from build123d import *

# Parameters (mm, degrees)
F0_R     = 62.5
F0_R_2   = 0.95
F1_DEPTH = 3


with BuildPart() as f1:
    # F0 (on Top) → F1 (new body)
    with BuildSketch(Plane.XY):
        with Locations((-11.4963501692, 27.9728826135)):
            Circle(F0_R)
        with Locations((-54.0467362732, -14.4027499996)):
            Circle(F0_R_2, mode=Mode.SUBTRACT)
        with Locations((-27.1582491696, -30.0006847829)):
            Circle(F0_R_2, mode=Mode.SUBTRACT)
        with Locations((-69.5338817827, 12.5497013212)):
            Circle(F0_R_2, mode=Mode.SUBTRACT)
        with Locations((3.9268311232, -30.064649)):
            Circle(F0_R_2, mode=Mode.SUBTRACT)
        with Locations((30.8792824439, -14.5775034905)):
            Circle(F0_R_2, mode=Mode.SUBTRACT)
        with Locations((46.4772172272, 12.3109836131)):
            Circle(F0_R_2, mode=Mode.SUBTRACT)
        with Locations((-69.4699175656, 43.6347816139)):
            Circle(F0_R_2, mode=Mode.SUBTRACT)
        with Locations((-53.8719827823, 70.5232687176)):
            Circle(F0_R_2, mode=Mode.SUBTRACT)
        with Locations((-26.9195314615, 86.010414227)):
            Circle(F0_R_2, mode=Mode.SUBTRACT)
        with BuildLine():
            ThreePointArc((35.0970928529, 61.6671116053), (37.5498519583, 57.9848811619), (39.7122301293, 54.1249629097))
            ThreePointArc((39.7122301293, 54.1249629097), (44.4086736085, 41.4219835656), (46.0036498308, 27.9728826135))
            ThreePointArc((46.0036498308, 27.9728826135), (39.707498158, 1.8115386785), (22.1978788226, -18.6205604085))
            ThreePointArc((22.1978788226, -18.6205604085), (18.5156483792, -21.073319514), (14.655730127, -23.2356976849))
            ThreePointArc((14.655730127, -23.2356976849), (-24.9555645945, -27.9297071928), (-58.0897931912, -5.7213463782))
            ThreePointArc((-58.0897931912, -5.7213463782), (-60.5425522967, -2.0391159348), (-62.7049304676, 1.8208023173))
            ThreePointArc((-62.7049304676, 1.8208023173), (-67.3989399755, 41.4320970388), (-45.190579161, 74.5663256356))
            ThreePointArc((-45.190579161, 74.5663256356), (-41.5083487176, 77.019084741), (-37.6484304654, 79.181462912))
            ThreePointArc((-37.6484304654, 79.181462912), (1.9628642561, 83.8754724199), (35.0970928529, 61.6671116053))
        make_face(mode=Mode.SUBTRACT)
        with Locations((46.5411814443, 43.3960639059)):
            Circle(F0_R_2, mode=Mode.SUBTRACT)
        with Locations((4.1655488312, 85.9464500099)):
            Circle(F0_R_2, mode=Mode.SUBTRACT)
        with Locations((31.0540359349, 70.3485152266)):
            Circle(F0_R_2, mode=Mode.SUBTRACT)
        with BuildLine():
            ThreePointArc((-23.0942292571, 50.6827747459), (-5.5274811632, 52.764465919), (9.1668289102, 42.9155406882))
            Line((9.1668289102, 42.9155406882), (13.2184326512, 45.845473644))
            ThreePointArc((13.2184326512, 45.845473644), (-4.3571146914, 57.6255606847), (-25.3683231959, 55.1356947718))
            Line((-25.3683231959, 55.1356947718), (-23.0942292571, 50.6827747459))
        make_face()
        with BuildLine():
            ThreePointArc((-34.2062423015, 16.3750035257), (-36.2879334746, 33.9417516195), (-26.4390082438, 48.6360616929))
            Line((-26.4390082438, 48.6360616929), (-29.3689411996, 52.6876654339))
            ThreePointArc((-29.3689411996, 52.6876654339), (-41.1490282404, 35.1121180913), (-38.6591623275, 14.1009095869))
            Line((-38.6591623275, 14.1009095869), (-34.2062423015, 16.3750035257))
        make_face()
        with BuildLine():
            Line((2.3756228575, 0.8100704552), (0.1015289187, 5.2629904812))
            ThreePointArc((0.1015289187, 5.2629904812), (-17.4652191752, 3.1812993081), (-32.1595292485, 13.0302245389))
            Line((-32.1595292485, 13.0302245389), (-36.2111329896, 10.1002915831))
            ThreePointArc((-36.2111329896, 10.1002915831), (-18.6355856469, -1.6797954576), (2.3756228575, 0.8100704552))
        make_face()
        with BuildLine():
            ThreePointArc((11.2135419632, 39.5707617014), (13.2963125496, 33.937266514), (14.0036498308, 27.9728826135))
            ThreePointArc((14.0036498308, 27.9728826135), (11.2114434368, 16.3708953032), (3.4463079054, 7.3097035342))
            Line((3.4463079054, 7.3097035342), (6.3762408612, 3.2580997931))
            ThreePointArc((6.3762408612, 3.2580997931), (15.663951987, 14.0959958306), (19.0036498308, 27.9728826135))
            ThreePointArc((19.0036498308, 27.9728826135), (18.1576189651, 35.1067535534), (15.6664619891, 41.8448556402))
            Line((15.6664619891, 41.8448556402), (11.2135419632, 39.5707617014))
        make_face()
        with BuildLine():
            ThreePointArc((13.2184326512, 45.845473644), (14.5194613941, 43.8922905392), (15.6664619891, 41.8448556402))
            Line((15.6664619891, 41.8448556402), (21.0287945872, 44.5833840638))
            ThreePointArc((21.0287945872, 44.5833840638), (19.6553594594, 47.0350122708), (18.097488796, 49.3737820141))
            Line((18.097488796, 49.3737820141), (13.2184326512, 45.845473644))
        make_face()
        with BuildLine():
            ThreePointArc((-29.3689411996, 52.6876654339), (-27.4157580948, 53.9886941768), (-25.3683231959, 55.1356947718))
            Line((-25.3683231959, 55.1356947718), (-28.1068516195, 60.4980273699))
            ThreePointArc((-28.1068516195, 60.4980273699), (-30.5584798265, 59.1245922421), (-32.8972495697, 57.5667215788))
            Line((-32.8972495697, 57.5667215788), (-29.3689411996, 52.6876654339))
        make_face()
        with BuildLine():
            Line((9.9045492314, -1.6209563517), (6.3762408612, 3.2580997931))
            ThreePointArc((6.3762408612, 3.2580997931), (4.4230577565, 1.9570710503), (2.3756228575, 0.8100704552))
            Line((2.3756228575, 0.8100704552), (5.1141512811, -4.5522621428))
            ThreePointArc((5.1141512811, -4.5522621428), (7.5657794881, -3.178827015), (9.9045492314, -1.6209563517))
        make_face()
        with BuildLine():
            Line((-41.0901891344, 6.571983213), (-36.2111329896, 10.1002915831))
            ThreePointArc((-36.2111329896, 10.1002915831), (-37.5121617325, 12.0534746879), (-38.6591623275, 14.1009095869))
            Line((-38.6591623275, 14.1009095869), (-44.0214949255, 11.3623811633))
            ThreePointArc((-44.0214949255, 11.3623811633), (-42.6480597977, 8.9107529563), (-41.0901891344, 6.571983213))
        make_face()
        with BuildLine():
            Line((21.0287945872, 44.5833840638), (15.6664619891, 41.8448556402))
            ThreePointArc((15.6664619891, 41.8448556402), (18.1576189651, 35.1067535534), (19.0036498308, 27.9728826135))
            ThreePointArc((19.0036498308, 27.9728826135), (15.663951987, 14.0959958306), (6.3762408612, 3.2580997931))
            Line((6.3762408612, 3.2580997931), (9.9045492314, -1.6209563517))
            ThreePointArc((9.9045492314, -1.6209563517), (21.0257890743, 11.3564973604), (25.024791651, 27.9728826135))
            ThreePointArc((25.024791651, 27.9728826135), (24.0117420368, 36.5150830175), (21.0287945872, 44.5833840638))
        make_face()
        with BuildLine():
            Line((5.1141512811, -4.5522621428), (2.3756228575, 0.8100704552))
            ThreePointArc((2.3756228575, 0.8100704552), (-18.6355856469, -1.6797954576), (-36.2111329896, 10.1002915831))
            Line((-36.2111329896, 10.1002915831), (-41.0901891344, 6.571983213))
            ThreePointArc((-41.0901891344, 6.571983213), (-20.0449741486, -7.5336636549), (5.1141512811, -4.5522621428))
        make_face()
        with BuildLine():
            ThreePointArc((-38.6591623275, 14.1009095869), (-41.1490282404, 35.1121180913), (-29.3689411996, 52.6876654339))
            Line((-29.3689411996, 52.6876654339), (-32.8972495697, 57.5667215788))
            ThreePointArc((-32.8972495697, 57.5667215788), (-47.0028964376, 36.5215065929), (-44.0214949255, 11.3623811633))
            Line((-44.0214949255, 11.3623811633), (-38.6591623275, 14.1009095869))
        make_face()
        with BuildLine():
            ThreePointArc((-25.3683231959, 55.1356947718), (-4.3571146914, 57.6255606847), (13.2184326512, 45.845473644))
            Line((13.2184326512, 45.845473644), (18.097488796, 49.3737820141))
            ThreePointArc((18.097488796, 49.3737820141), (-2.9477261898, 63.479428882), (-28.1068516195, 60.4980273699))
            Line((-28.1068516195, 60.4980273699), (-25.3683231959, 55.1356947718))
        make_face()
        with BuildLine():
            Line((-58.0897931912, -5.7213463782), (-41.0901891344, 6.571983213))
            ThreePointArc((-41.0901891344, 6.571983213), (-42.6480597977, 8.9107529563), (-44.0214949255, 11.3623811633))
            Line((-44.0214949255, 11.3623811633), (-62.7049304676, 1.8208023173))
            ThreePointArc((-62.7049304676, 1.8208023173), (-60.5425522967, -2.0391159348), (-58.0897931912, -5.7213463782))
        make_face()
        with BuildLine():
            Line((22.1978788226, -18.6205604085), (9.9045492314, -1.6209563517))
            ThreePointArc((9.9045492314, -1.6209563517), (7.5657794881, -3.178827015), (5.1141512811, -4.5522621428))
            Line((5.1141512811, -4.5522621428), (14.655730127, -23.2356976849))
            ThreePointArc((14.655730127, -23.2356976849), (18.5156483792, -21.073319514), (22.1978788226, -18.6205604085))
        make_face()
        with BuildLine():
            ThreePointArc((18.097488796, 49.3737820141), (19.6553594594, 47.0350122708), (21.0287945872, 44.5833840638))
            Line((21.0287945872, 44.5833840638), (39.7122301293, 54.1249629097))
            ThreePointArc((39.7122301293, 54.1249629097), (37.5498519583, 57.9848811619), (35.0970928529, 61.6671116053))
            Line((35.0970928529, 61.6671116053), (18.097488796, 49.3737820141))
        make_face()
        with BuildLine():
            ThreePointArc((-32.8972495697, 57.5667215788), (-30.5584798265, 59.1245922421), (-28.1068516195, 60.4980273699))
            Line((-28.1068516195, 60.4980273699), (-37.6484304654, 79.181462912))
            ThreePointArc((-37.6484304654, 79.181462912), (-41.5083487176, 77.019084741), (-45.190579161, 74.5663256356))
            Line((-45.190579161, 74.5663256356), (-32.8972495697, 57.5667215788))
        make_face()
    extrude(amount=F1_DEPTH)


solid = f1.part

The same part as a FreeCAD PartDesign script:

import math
import FreeCAD as App
import Part
import Sketcher

V = App.Vector

doc = App.newDocument("Part")
body = doc.addObject("PartDesign::Body", "Body")

# Sketch on XY plane
sketch1 = body.newObject("Sketcher::SketchObject", "Sketch")
sketch1.AttachmentSupport = (doc.getObject("XY_Plane"), [""])
sketch1.MapMode = "FlatFace"
sketch1.addGeometry(Part.Circle(V(-11.5, 28, 0), V(0, 0, 1), 62.5), False)
sketch1.addGeometry(Part.Circle(V(-54, -14.4, 0), V(0, 0, 1), 0.9), False)
sketch1.addGeometry(Part.Circle(V(-27.2, -30, 0), V(0, 0, 1), 0.9), False)
sketch1.addGeometry(Part.Circle(V(-69.5, 12.5, 0), V(0, 0, 1), 0.9), False)
sketch1.addGeometry(Part.Circle(V(3.9, -30.1, 0), V(0, 0, 1), 0.9), False)
sketch1.addGeometry(Part.Circle(V(30.9, -14.6, 0), V(0, 0, 1), 0.9), False)
sketch1.addGeometry(Part.Circle(V(46.5, 12.3, 0), V(0, 0, 1), 0.9), False)
sketch1.addGeometry(Part.Circle(V(-69.5, 43.6, 0), V(0, 0, 1), 0.9), False)
sketch1.addGeometry(Part.Circle(V(-53.9, 70.5, 0), V(0, 0, 1), 0.9), False)
sketch1.addGeometry(Part.Circle(V(-26.9, 86, 0), V(0, 0, 1), 0.9), False)
sketch1.addGeometry(Part.ArcOfCircle(Part.Circle(V(-11.5, 28, 0), V(0, 0, 1), 57.5), math.radians(36), math.radians(117)), False)
sketch1.addGeometry(Part.LineSegment(V(35.1, 61.7, 0), V(18.1, 49.4, 0)), False)
sketch1.addGeometry(Part.ArcOfCircle(Part.Circle(V(-11.5, 28, 0), V(0, 0, 1), 36.5), math.radians(36), math.radians(117)), False)
sketch1.addGeometry(Part.LineSegment(V(-28.1, 60.5, 0), V(-37.6, 79.2, 0)), False)
sketch1.addGeometry(Part.ArcOfCircle(Part.Circle(V(-11.5, 28, 0), V(0, 0, 1), 36.5), math.radians(126), math.radians(207)), False)
sketch1.addGeometry(Part.LineSegment(V(-44, 11.4, 0), V(-62.7, 1.8, 0)), False)
sketch1.addGeometry(Part.ArcOfCircle(Part.Circle(V(-11.5, 28, 0), V(0, 0, 1), 57.5), math.radians(126), math.radians(207)), False)
sketch1.addGeometry(Part.LineSegment(V(-45.2, 74.6, 0), V(-32.9, 57.6, 0)), False)
sketch1.addGeometry(Part.ArcOfCircle(Part.Circle(V(-11.5, 28, 0), V(0, 0, 1), 57.5), math.radians(0), math.radians(27)), False)
sketch1.addGeometry(Part.ArcOfCircle(Part.Circle(V(-11.5, 28, 0), V(0, 0, 1), 57.5), math.radians(-54), math.radians(0)), False)
sketch1.addGeometry(Part.LineSegment(V(22.2, -18.6, 0), V(9.9, -1.6, 0)), False)
sketch1.addGeometry(Part.ArcOfCircle(Part.Circle(V(-11.5, 28, 0), V(0, 0, 1), 36.5), math.radians(-54), math.radians(0)), False)
sketch1.addGeometry(Part.ArcOfCircle(Part.Circle(V(-11.5, 28, 0), V(0, 0, 1), 36.5), math.radians(0), math.radians(27)), False)
sketch1.addGeometry(Part.LineSegment(V(21, 44.6, 0), V(39.7, 54.1, 0)), False)
sketch1.addGeometry(Part.ArcOfCircle(Part.Circle(V(-11.5, 28, 0), V(0, 0, 1), 57.5), math.radians(-144), math.radians(-63)), False)
sketch1.addGeometry(Part.LineSegment(V(-58.1, -5.7, 0), V(-41.1, 6.6, 0)), False)
sketch1.addGeometry(Part.ArcOfCircle(Part.Circle(V(-11.5, 28, 0), V(0, 0, 1), 36.5), math.radians(-144), math.radians(-63)), False)
sketch1.addGeometry(Part.LineSegment(V(5.1, -4.6, 0), V(14.7, -23.2, 0)), False)
sketch1.addGeometry(Part.Circle(V(46.5, 43.4, 0), V(0, 0, 1), 0.9), False)
sketch1.addGeometry(Part.Circle(V(4.2, 85.9, 0), V(0, 0, 1), 0.9), False)
sketch1.addGeometry(Part.Circle(V(31.1, 70.3, 0), V(0, 0, 1), 0.9), False)
sketch1.addGeometry(Part.ArcOfCircle(Part.Circle(V(-11.5, 28, 0), V(0, 0, 1), 25.5), math.radians(36), math.radians(117)), False)
sketch1.addGeometry(Part.LineSegment(V(9.2, 42.9, 0), V(13.2, 45.8, 0)), False)
sketch1.addGeometry(Part.ArcOfCircle(Part.Circle(V(-11.5, 28, 0), V(0, 0, 1), 30.5), math.radians(27.05), math.radians(35.87)), False)
sketch1.addGeometry(Part.LineSegment(V(15.7, 41.8, 0), V(11.2, 39.6, 0)), False)
sketch1.addGeometry(Part.ArcOfCircle(Part.Circle(V(-11.5, 28, 0), V(0, 0, 1), 25.5), math.radians(0), math.radians(27)), False)
sketch1.addGeometry(Part.ArcOfCircle(Part.Circle(V(-11.5, 28, 0), V(0, 0, 1), 25.5), math.radians(-54), math.radians(0)), False)
sketch1.addGeometry(Part.LineSegment(V(3.4, 7.3, 0), V(6.4, 3.3, 0)), False)
sketch1.addGeometry(Part.ArcOfCircle(Part.Circle(V(-11.5, 28, 0), V(0, 0, 1), 30.5), math.radians(-62.95), math.radians(-54.13)), False)
sketch1.addGeometry(Part.LineSegment(V(2.4, 0.8, 0), V(0.1, 5.3, 0)), False)
sketch1.addGeometry(Part.ArcOfCircle(Part.Circle(V(-11.5, 28, 0), V(0, 0, 1), 25.5), math.radians(-144), math.radians(-63)), False)
sketch1.addGeometry(Part.LineSegment(V(-32.2, 13, 0), V(-36.2, 10.1, 0)), False)
sketch1.addGeometry(Part.ArcOfCircle(Part.Circle(V(-11.5, 28, 0), V(0, 0, 1), 30.5), math.radians(-152.95), math.radians(-144.13)), False)
sketch1.addGeometry(Part.LineSegment(V(-38.7, 14.1, 0), V(-34.2, 16.4, 0)), False)
sketch1.addGeometry(Part.ArcOfCircle(Part.Circle(V(-11.5, 28, 0), V(0, 0, 1), 25.5), math.radians(126), math.radians(207)), False)
sketch1.addGeometry(Part.LineSegment(V(-26.4, 48.6, 0), V(-29.4, 52.7, 0)), False)
sketch1.addGeometry(Part.ArcOfCircle(Part.Circle(V(-11.5, 28, 0), V(0, 0, 1), 30.5), math.radians(117.05), math.radians(125.87)), False)
sketch1.addGeometry(Part.LineSegment(V(-25.4, 55.1, 0), V(-23.1, 50.7, 0)), False)
sketch1.addConstraint(Sketcher.Constraint("Coincident", 10, 1, 11, 1))
sketch1.addConstraint(Sketcher.Constraint("Coincident", 11, 2, 12, 1))
sketch1.addConstraint(Sketcher.Constraint("Coincident", 12, 2, 13, 1))
sketch1.addConstraint(Sketcher.Constraint("Coincident", 13, 2, 10, 2))
sketch1.addConstraint(Sketcher.Constraint("Coincident", 14, 2, 15, 1))
sketch1.addConstraint(Sketcher.Constraint("Coincident", 15, 2, 16, 2))
sketch1.addConstraint(Sketcher.Constraint("Coincident", 16, 1, 17, 1))
sketch1.addConstraint(Sketcher.Constraint("Coincident", 17, 2, 14, 1))
sketch1.addConstraint(Sketcher.Constraint("Tangent", 18, 1, 19, 2))
sketch1.addConstraint(Sketcher.Constraint("Coincident", 19, 1, 20, 1))
sketch1.addConstraint(Sketcher.Constraint("Coincident", 20, 2, 21, 1))
sketch1.addConstraint(Sketcher.Constraint("Tangent", 21, 2, 22, 1))
sketch1.addConstraint(Sketcher.Constraint("Coincident", 22, 2, 23, 1))
sketch1.addConstraint(Sketcher.Constraint("Coincident", 23, 2, 18, 2))
sketch1.addConstraint(Sketcher.Constraint("Coincident", 24, 1, 25, 1))
sketch1.addConstraint(Sketcher.Constraint("Coincident", 25, 2, 26, 1))
sketch1.addConstraint(Sketcher.Constraint("Coincident", 26, 2, 27, 1))
sketch1.addConstraint(Sketcher.Constraint("Coincident", 27, 2, 24, 2))
sketch1.addConstraint(Sketcher.Constraint("Coincident", 31, 1, 32, 1))
sketch1.addConstraint(Sketcher.Constraint("Coincident", 32, 2, 33, 2))
sketch1.addConstraint(Sketcher.Constraint("Coincident", 33, 1, 34, 1))
sketch1.addConstraint(Sketcher.Constraint("Coincident", 34, 2, 35, 2))
sketch1.addConstraint(Sketcher.Constraint("Tangent", 35, 1, 36, 2))
sketch1.addConstraint(Sketcher.Constraint("Coincident", 36, 1, 37, 1))
sketch1.addConstraint(Sketcher.Constraint("Coincident", 37, 2, 38, 2))
sketch1.addConstraint(Sketcher.Constraint("Coincident", 38, 1, 39, 1))
sketch1.addConstraint(Sketcher.Constraint("Coincident", 39, 2, 40, 2))
sketch1.addConstraint(Sketcher.Constraint("Coincident", 40, 1, 41, 1))
sketch1.addConstraint(Sketcher.Constraint("Coincident", 41, 2, 42, 2))
sketch1.addConstraint(Sketcher.Constraint("Coincident", 42, 1, 43, 1))
sketch1.addConstraint(Sketcher.Constraint("Coincident", 43, 2, 44, 2))
sketch1.addConstraint(Sketcher.Constraint("Coincident", 44, 1, 45, 1))
sketch1.addConstraint(Sketcher.Constraint("Coincident", 45, 2, 46, 2))
sketch1.addConstraint(Sketcher.Constraint("Coincident", 46, 1, 47, 1))
sketch1.addConstraint(Sketcher.Constraint("Coincident", 47, 2, 31, 2))
sketch1.addConstraint(Sketcher.Constraint("Coincident", 10, 3, 0, 3))
sketch1.addConstraint(Sketcher.Constraint("Coincident", 12, 3, 0, 3))
sketch1.addConstraint(Sketcher.Constraint("Coincident", 14, 3, 0, 3))
sketch1.addConstraint(Sketcher.Constraint("Coincident", 16, 3, 0, 3))
sketch1.addConstraint(Sketcher.Constraint("Coincident", 18, 3, 0, 3))
sketch1.addConstraint(Sketcher.Constraint("Coincident", 21, 3, 0, 3))
sketch1.addConstraint(Sketcher.Constraint("Coincident", 24, 3, 0, 3))
sketch1.addConstraint(Sketcher.Constraint("Coincident", 26, 3, 0, 3))
sketch1.addConstraint(Sketcher.Constraint("Coincident", 31, 3, 0, 3))
sketch1.addConstraint(Sketcher.Constraint("Coincident", 33, 3, 0, 3))
sketch1.addConstraint(Sketcher.Constraint("Coincident", 35, 3, 0, 3))
sketch1.addConstraint(Sketcher.Constraint("Coincident", 38, 3, 0, 3))
sketch1.addConstraint(Sketcher.Constraint("Coincident", 40, 3, 0, 3))
sketch1.addConstraint(Sketcher.Constraint("Coincident", 42, 3, 0, 3))
sketch1.addConstraint(Sketcher.Constraint("Coincident", 44, 3, 0, 3))
sketch1.addConstraint(Sketcher.Constraint("Coincident", 46, 3, 0, 3))
sketch1.addConstraint(Sketcher.Constraint("Equal", 1, 2))
sketch1.addConstraint(Sketcher.Constraint("Equal", 2, 3))
sketch1.addConstraint(Sketcher.Constraint("Equal", 3, 4))
sketch1.addConstraint(Sketcher.Constraint("Equal", 4, 5))
sketch1.addConstraint(Sketcher.Constraint("Equal", 5, 6))
sketch1.addConstraint(Sketcher.Constraint("Equal", 6, 7))
sketch1.addConstraint(Sketcher.Constraint("Equal", 7, 8))
sketch1.addConstraint(Sketcher.Constraint("Equal", 8, 9))
sketch1.addConstraint(Sketcher.Constraint("Equal", 12, 14))
sketch1.addConstraint(Sketcher.Constraint("Equal", 10, 16))
sketch1.addConstraint(Sketcher.Constraint("Equal", 16, 18))
sketch1.addConstraint(Sketcher.Constraint("Equal", 18, 19))
sketch1.addConstraint(Sketcher.Constraint("Equal", 14, 21))
sketch1.addConstraint(Sketcher.Constraint("Equal", 21, 22))
sketch1.addConstraint(Sketcher.Constraint("Equal", 19, 24))
sketch1.addConstraint(Sketcher.Constraint("Equal", 22, 26))
sketch1.addConstraint(Sketcher.Constraint("Equal", 9, 28))
sketch1.addConstraint(Sketcher.Constraint("Equal", 28, 29))
sketch1.addConstraint(Sketcher.Constraint("Equal", 29, 30))
sketch1.addConstraint(Sketcher.Constraint("Equal", 31, 35))
sketch1.addConstraint(Sketcher.Constraint("Equal", 35, 36))
sketch1.addConstraint(Sketcher.Constraint("Equal", 33, 38))
sketch1.addConstraint(Sketcher.Constraint("Equal", 36, 40))
sketch1.addConstraint(Sketcher.Constraint("Equal", 38, 42))
sketch1.addConstraint(Sketcher.Constraint("Equal", 40, 44))
sketch1.addConstraint(Sketcher.Constraint("Equal", 42, 46))
sketch1.addConstraint(Sketcher.Constraint("Perpendicular", 13, 15))
sketch1.addConstraint(Sketcher.Constraint("Perpendicular", 11, 17))
sketch1.addConstraint(Sketcher.Constraint("Parallel", 17, 20))
sketch1.addConstraint(Sketcher.Constraint("Parallel", 15, 23))
sketch1.addConstraint(Sketcher.Constraint("Perpendicular", 20, 25))
sketch1.addConstraint(Sketcher.Constraint("Perpendicular", 23, 27))
sketch1.addConstraint(Sketcher.Constraint("Parallel", 25, 32))
sketch1.addConstraint(Sketcher.Constraint("Perpendicular", 27, 34))
sketch1.addConstraint(Sketcher.Constraint("Perpendicular", 32, 37))
sketch1.addConstraint(Sketcher.Constraint("Perpendicular", 34, 39))
sketch1.addConstraint(Sketcher.Constraint("Perpendicular", 37, 41))
sketch1.addConstraint(Sketcher.Constraint("Perpendicular", 39, 43))
sketch1.addConstraint(Sketcher.Constraint("Perpendicular", 41, 45))
sketch1.addConstraint(Sketcher.Constraint("Perpendicular", 43, 47))
sketch1.addConstraint(Sketcher.Constraint("Horizontal", 46, 3, 18, 1))
sketch1.addConstraint(Sketcher.Constraint("Horizontal", 18, 1, 21, 2))
sketch1.addConstraint(Sketcher.Constraint("Horizontal", 21, 2, 35, 1))
sketch1.addConstraint(Sketcher.Constraint("Diameter", 0, 125.0))
sketch1.addConstraint(Sketcher.Constraint("Diameter", 1, 1.9))
sketch1.addConstraint(Sketcher.Constraint("Radius", 10, 57.5))
sketch1.addConstraint(Sketcher.Constraint("Radius", 31, 25.5))
sketch1.addConstraint(Sketcher.Constraint("Radius", 33, 30.5))
sketch1.addConstraint(Sketcher.Constraint("Radius", 12, 36.521142))
sketch1.addConstraint(Sketcher.Constraint("DistanceY", -1, 1, 3, 3, 12.549701))
sketch1.addConstraint(Sketcher.Constraint("DistanceY", -1, 1, 37, 2, 3.2581))
sketch1.addConstraint(Sketcher.Constraint("DistanceX", 0, 3, -1, 1, 11.49635))
sketch1.addConstraint(Sketcher.Constraint("DistanceY", 1, 3, -1, 1, 14.40275))
sketch1.addConstraint(Sketcher.Constraint("DistanceX", 2, 3, -1, 1, 27.158249))
sketch1.addConstraint(Sketcher.Constraint("DistanceX", 3, 3, -1, 1, 69.533882))
sketch1.addConstraint(Sketcher.Constraint("DistanceX", -1, 1, 4, 3, 3.926831))
sketch1.addConstraint(Sketcher.Constraint("DistanceY", 4, 3, -1, 1, 30.064649))
sketch1.addConstraint(Sketcher.Constraint("DistanceY", -1, 1, 7, 3, 43.634782))
sketch1.addConstraint(Sketcher.Constraint("DistanceY", -1, 1, 8, 3, 70.523269))
sketch1.addConstraint(Sketcher.Constraint("DistanceX", 9, 3, -1, 1, 26.919531))
sketch1.addConstraint(Sketcher.Constraint("DistanceX", -1, 1, 28, 3, 46.541181))
sketch1.addConstraint(Sketcher.Constraint("DistanceX", -1, 1, 29, 3, 4.165549))
sketch1.addConstraint(Sketcher.Constraint("DistanceY", -1, 1, 29, 3, 85.94645))
sketch1.addConstraint(Sketcher.Constraint("DistanceY", -1, 1, 10, 1, 61.667112))
sketch1.addConstraint(Sketcher.Constraint("DistanceX", -1, 1, 11, 2, 18.097489))
sketch1.addConstraint(Sketcher.Constraint("DistanceX", 12, 2, -1, 1, 28.106852))
sketch1.addConstraint(Sketcher.Constraint("DistanceX", 13, 2, -1, 1, 37.64843))
sketch1.addConstraint(Sketcher.Constraint("DistanceY", -1, 1, 14, 2, 11.362381))
sketch1.addConstraint(Sketcher.Constraint("DistanceX", 15, 2, -1, 1, 62.70493))
sketch1.addConstraint(Sketcher.Constraint("DistanceX", 16, 1, -1, 1, 45.190579))
sketch1.addConstraint(Sketcher.Constraint("DistanceX", -1, 1, 19, 1, 22.197879))
sketch1.addConstraint(Sketcher.Constraint("DistanceX", -1, 1, 23, 2, 39.71223))
sketch1.addConstraint(Sketcher.Constraint("DistanceX", 25, 2, -1, 1, 41.090189))
sketch1.addConstraint(Sketcher.Constraint("DistanceX", -1, 1, 26, 2, 5.114151))
sketch1.addConstraint(Sketcher.Constraint("DistanceX", -1, 1, 31, 1, 9.166829))
sketch1.addConstraint(Sketcher.Constraint("DistanceX", -1, 1, 33, 1, 15.666462))
sketch1.addConstraint(Sketcher.Constraint("DistanceY", -1, 1, 38, 1, 0.81007))
sketch1.addConstraint(Sketcher.Constraint("DistanceX", 40, 1, -1, 1, 32.159529))
sketch1.addConstraint(Sketcher.Constraint("DistanceY", -1, 1, 42, 1, 14.10091))
sketch1.addConstraint(Sketcher.Constraint("DistanceX", 44, 1, -1, 1, 26.439008))
sketch1.addConstraint(Sketcher.Constraint("DistanceX", 47, 2, -1, 1, 23.094229))
sketch1.addConstraint(Sketcher.Constraint("DistanceX", 1, 3, -1, 1, 54.046736))
sketch1.addConstraint(Sketcher.Constraint("DistanceY", 2, 3, -1, 1, 30.000685))
sketch1.addConstraint(Sketcher.Constraint("DistanceX", -1, 1, 5, 3, 30.879282))
sketch1.addConstraint(Sketcher.Constraint("DistanceY", 5, 3, -1, 1, 14.577503))
sketch1.addConstraint(Sketcher.Constraint("DistanceX", -1, 1, 6, 3, 46.477217))
sketch1.addConstraint(Sketcher.Constraint("DistanceY", -1, 1, 6, 3, 12.310984))
sketch1.addConstraint(Sketcher.Constraint("DistanceX", 7, 3, -1, 1, 69.469918))
sketch1.addConstraint(Sketcher.Constraint("DistanceX", 8, 3, -1, 1, 53.871983))
sketch1.addConstraint(Sketcher.Constraint("DistanceY", -1, 1, 9, 3, 86.010414))
sketch1.addConstraint(Sketcher.Constraint("DistanceY", -1, 1, 28, 3, 43.396064))
sketch1.addConstraint(Sketcher.Constraint("DistanceX", -1, 1, 30, 3, 31.054036))
sketch1.addConstraint(Sketcher.Constraint("DistanceY", -1, 1, 30, 3, 70.348515))
pad1 = body.newObject("PartDesign::Pad", "Pad")
pad1.Profile = sketch1
pad1.Length = 3

doc.recompute()
